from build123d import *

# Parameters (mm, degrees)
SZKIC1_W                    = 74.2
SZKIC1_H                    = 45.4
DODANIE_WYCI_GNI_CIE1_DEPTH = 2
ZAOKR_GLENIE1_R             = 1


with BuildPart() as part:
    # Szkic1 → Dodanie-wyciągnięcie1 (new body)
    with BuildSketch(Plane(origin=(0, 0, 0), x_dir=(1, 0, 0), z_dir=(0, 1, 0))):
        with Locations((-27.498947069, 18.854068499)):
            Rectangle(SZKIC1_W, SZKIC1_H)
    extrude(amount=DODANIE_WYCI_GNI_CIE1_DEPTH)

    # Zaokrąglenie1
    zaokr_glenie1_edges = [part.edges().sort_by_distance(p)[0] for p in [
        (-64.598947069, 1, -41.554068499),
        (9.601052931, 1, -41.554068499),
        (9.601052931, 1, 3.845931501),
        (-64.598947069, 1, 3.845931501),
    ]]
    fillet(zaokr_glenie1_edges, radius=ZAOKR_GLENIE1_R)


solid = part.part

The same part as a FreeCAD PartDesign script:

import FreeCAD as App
import Part
import Sketcher
from FreeCAD import Vector


def edges_at(feature, points):
    """Names of the edges that pass closest to the given points."""
    edges = feature.Shape.Edges
    near = lambda p: min(range(len(edges)), key=lambda i: edges[i].distToShape(Part.Vertex(*p))[0])
    return sorted({f"Edge{near(p) + 1}" for p in points})


def add_polygon(sketch, points):
    """Adds a closed chain of lines whose ends are joined by coincident constraints."""
    first, n = sketch.GeometryCount, len(points)
    for a, b in zip(points, points[1:] + points[:1]):
        sketch.addGeometry(Part.LineSegment(App.Vector(*a, 0), App.Vector(*b, 0)), False)
    for i in range(n):
        sketch.addConstraint(Sketcher.Constraint("Coincident", first + i, 2, first + (i + 1) % n, 1))

doc = App.newDocument("Part")
body = doc.addObject("PartDesign::Body", "Body")

# Sketch on XZ plane
sketch1 = doc.addObject("Sketcher::SketchObject", "Sketch")
body.addObject(sketch1)
sketch1.AttachmentSupport = (doc.XZ_Plane, [""])
sketch1.MapMode = "FlatFace"
add_polygon(sketch1, [(-65, -42), (-65, 4), (10, 4), (10, -42)])  # lines 0-3
sketch1.addConstraint(Sketcher.Constraint("Vertical", 0))
sketch1.addConstraint(Sketcher.Constraint("Horizontal", 1))
sketch1.addConstraint(Sketcher.Constraint("Vertical", 2))
sketch1.addConstraint(Sketcher.Constraint("Horizontal", 3))
sketch1.addConstraint(Sketcher.Constraint("DistanceX", 1, 1, 1, 2, 74.2))
sketch1.addConstraint(Sketcher.Constraint("DistanceY", 0, 1, 0, 2, 45.4))
sketch1.addConstraint(Sketcher.Constraint("DistanceY", -1, 1, 0, 2, 3.845932))
sketch1.addConstraint(Sketcher.Constraint("DistanceX", 0, 2, -1, 1, 64.598947))
pad1 = doc.addObject("PartDesign::Pad", "Pad")
body.addObject(pad1)
pad1.Profile = sketch1
pad1.Length = 2
pad1.Reversed = True
doc.recompute()

fillet = doc.addObject("PartDesign::Fillet", "Fillet")
body.addObject(fillet)
fillet.Base = (pad1, edges_at(pad1, [
    (-64.599, 1, -41.554),
    (9.601, 1, -41.554),
    (9.601, 1, 3.846),
    (-64.599, 1, 3.846),
]))
fillet.Radius = 1

doc.recompute()
